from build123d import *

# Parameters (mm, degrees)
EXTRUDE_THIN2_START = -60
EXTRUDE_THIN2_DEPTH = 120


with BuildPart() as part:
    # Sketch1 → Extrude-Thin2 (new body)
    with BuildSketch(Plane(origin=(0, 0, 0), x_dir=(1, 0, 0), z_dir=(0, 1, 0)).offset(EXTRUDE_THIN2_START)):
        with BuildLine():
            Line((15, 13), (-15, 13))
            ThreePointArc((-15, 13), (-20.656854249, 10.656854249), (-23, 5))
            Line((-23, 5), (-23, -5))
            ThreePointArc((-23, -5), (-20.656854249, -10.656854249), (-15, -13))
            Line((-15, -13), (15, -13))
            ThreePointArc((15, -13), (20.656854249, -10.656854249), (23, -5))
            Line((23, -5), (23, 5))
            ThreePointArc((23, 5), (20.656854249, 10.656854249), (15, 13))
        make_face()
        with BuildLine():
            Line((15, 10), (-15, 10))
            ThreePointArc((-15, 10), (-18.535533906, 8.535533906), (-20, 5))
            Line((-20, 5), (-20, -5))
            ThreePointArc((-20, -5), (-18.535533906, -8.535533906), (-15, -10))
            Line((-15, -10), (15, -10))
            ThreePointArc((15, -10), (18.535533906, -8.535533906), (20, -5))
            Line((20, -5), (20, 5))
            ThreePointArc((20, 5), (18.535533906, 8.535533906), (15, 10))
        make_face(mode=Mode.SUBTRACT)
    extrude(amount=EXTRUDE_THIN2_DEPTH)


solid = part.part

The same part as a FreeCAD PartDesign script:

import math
import FreeCAD as App
import Part
import Sketcher
from FreeCAD import Vector

doc = App.newDocument("Part")
params = doc.addObject("Spreadsheet::Sheet", "Params")
for row, (alias, value) in enumerate([
    ("sketch1_radius", "8 mm"),
    ("sketch1_radius2", "5 mm"),
    ("sketch1_width", "30 mm"),
    ("sketch1_height", "10 mm"),
    ("pad1_length", "120 mm"),
], start=1):
    params.set(f"A{row}", alias)
    params.set(f"B{row}", "=" + value)
    params.setAlias(f"B{row}", alias)

body = doc.addObject("PartDesign::Body", "Body")

sketch1 = doc.addObject("Sketcher::SketchObject", "Sketch")
body.addObject(sketch1)
sketch1.AttachmentSupport = (doc.XZ_Plane, [""])
sketch1.MapMode = "FlatFace"
sketch1.AttachmentOffset = App.Placement(Vector(0, 0, 60), App.Rotation())
sketch1.addGeometry([
    Part.LineSegment(Vector(15, -13, 0), Vector(-15, -13, 0)),
    Part.ArcOfCircle(Part.Circle(Vector(-15, -5, 0), Vector(0, 0, 1), 8), math.radians(-180), math.radians(-90)),
    Part.LineSegment(Vector(-23, -5, 0), Vector(-23, 5, 0)),
    Part.ArcOfCircle(Part.Circle(Vector(-15, 5, 0), Vector(0, 0, 1), 8), math.radians(90), math.radians(180)),
    Part.LineSegment(Vector(-15, 13, 0), Vector(15, 13, 0)),
    Part.ArcOfCircle(Part.Circle(Vector(15, 5, 0), Vector(0, 0, 1), 8), math.radians(0), math.radians(90)),
    Part.LineSegment(Vector(23, 5, 0), Vector(23, -5, 0)),
    Part.ArcOfCircle(Part.Circle(Vector(15, -5, 0), Vector(0, 0, 1), 8), math.radians(-90), math.radians(0)),
    Part.LineSegment(Vector(-15, -10, 0), Vector(15, -10, 0)),
    Part.ArcOfCircle(Part.Circle(Vector(15, -5, 0), Vector(0, 0, 1), 5), math.radians(-90), math.radians(0)),
    Part.LineSegment(Vector(20, -5, 0), Vector(20, 5, 0)),
    Part.ArcOfCircle(Part.Circle(Vector(15, 5, 0), Vector(0, 0, 1), 5), math.radians(0), math.radians(90)),
    Part.LineSegment(Vector(15, 10, 0), Vector(-15, 10, 0)),
    Part.ArcOfCircle(Part.Circle(Vector(-15, 5, 0), Vector(0, 0, 1), 5), math.radians(90), math.radians(180)),
    Part.LineSegment(Vector(-20, 5, 0), Vector(-20, -5, 0)),
    Part.ArcOfCircle(Part.Circle(Vector(-15, -5, 0), Vector(0, 0, 1), 5), math.radians(180), math.radians(270)),
], False)
sketch1.addConstraint([
    Sketcher.Constraint("Tangent", 0, 2, 1, 2),
    Sketcher.Constraint("Tangent", 1, 1, 2, 1),
    Sketcher.Constraint("Tangent", 2, 2, 3, 2),
    Sketcher.Constraint("Tangent", 3, 1, 4, 1),
    Sketcher.Constraint("Tangent", 4, 2, 5, 2),
    Sketcher.Constraint("Tangent", 5, 1, 6, 1),
    Sketcher.Constraint("Tangent", 6, 2, 7, 2),
    Sketcher.Constraint("Tangent", 7, 1, 0, 1),
    Sketcher.Constraint("Tangent", 8, 2, 9, 1),
    Sketcher.Constraint("Tangent", 9, 2, 10, 1),
    Sketcher.Constraint("Tangent", 10, 2, 11, 1),
    Sketcher.Constraint("Tangent", 11, 2, 12, 1),
    Sketcher.Constraint("Tangent", 12, 2, 13, 1),
    Sketcher.Constraint("Tangent", 13, 2, 14, 1),
    Sketcher.Constraint("Tangent", 14, 2, 15, 1),
    Sketcher.Constraint("Tangent", 15, 2, 8, 1),
    Sketcher.Constraint("Horizontal", 0),
    Sketcher.Constraint("Vertical", 2),
    Sketcher.Constraint("Horizontal", 4),
    Sketcher.Constraint("Vertical", 6),
    Sketcher.Constraint("Horizontal", 8),
    Sketcher.Constraint("Vertical", 10),
    Sketcher.Constraint("Horizontal", 12),
    Sketcher.Constraint("Vertical", 14),
    Sketcher.Constraint("Coincident", 9, 3, 7, 3),
    Sketcher.Constraint("Coincident", 11, 3, 5, 3),
    Sketcher.Constraint("Coincident", 13, 3, 3, 3),
    Sketcher.Constraint("Equal", 1, 3),
    Sketcher.Constraint("Equal", 3, 5),
    Sketcher.Constraint("Equal", 5, 7),
    Sketcher.Constraint("Equal", 13, 15),
    Sketcher.Constraint("Symmetric", 1, 3, 5, 3, -1, 1),
    Sketcher.Constraint("Radius", 1, 8.0),
    Sketcher.Constraint("Radius", 9, 5.0),
    Sketcher.Constraint("DistanceX", 0, 2, 0, 1, 30.0),
    Sketcher.Constraint("DistanceY", 2, 1, 2, 2, 10.0),
])
sketch1.setExpression("Constraints[32]", "Params.sketch1_radius")
sketch1.setExpression("Constraints[33]", "Params.sketch1_radius2")
sketch1.setExpression("Constraints[34]", "Params.sketch1_width")
sketch1.setExpression("Constraints[35]", "Params.sketch1_height")
pad1 = doc.addObject("PartDesign::Pad", "Pad")
body.addObject(pad1)
pad1.Profile = sketch1
pad1.setExpression("Length", "Params.pad1_length")
pad1.Reversed = True

doc.recompute()
